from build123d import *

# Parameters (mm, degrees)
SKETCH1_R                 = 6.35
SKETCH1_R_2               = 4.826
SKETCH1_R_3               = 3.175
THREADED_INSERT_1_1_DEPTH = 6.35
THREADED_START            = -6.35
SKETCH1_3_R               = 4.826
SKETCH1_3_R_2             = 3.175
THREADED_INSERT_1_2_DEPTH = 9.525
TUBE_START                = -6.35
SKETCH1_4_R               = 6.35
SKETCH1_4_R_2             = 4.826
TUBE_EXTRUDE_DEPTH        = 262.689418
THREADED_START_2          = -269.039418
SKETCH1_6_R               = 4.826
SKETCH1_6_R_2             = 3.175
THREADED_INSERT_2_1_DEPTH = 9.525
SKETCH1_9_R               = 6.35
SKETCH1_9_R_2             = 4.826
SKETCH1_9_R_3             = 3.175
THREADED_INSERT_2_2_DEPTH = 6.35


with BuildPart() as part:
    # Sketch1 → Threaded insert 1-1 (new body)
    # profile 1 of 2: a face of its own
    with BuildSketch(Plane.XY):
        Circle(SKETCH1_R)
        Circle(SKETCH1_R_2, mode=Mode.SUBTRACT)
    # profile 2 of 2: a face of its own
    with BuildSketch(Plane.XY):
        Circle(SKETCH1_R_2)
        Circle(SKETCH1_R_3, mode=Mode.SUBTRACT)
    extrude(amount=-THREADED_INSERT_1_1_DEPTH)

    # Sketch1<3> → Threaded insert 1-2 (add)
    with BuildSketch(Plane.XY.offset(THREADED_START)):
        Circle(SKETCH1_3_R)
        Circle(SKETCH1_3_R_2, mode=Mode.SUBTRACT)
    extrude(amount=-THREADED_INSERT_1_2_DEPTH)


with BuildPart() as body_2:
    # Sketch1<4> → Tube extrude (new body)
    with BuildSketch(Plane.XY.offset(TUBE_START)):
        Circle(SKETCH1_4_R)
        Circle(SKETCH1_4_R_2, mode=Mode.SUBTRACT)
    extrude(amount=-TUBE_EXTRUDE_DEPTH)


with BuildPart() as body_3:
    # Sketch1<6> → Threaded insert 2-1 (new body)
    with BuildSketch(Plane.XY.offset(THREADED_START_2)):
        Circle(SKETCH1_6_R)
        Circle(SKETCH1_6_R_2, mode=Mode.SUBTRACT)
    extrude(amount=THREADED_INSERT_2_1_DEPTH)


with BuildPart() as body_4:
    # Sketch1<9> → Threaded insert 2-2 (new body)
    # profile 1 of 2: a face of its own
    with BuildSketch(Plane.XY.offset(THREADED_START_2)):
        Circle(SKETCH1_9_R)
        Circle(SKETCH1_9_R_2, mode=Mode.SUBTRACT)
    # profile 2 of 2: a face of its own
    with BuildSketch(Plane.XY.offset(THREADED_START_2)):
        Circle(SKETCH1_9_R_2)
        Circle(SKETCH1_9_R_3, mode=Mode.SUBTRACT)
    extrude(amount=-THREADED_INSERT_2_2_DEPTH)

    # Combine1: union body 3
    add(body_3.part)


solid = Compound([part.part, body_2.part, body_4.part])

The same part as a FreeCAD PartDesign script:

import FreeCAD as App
import Part
import Sketcher

V = App.Vector
Q = App.Units.Quantity

doc = App.newDocument("Part")
body = doc.addObject("PartDesign::Body", "Body")

# Sketch on XY plane
sketch1 = body.newObject("Sketcher::SketchObject", "Sketch")
sketch1.AttachmentSupport = (doc.getObject("XY_Plane"), [""])
sketch1.MapMode = "FlatFace"
sketch1.addGeometry([
    Part.Circle(V(0, 0, 0), V(0, 0, 1), 6.35),
    Part.Circle(V(0, 0, 0), V(0, 0, 1), 3.175),
], False)
sketch1.addConstraint([
    Sketcher.Constraint("Coincident", 0, 3, -1, 1),
    Sketcher.Constraint("Coincident", 1, 3, -1, 1),
    Sketcher.Constraint("Diameter", 0, Q("0.5 in")),
    Sketcher.Constraint("Diameter", 1, Q("0.25 in")),
])
pad1 = body.newObject("PartDesign::Pad", "Pad")
pad1.Profile = sketch1
pad1.Length = Q("0.25 in")
pad1.Reversed = True

# Sketch on XY plane
sketch2 = body.newObject("Sketcher::SketchObject", "Sketch001")
sketch2.AttachmentSupport = (doc.getObject("XY_Plane"), [""])
sketch2.MapMode = "FlatFace"
sketch2.AttachmentOffset = App.Placement(V(0, 0, -0.25 * 25.4), App.Rotation())
sketch2.addGeometry([
    Part.Circle(V(0, 0, 0), V(0, 0, 1), 4.826),
    Part.Circle(V(0, 0, 0), V(0, 0, 1), 3.175),
], False)
sketch2.addConstraint([
    Sketcher.Constraint("Coincident", 0, 3, -1, 1),
    Sketcher.Constraint("Coincident", 1, 3, -1, 1),
    Sketcher.Constraint("Diameter", 0, Q("0.38 in")),
    Sketcher.Constraint("Diameter", 1, Q("0.25 in")),
])
pad2 = body.newObject("PartDesign::Pad", "Pad001")
pad2.Profile = sketch2
pad2.Length = Q("0.375 in")
pad2.Reversed = True
body2 = doc.addObject("PartDesign::Body", "Body001")

# Sketch on XY plane
sketch3 = body2.newObject("Sketcher::SketchObject", "Sketch002")
sketch3.AttachmentSupport = (doc.getObject("XY_Plane001"), [""])
sketch3.MapMode = "FlatFace"
sketch3.AttachmentOffset = App.Placement(V(0, 0, -0.25 * 25.4), App.Rotation())
sketch3.addGeometry([
    Part.Circle(V(0, 0, 0), V(0, 0, 1), 6.35),
    Part.Circle(V(0, 0, 0), V(0, 0, 1), 4.826),
], False)
sketch3.addConstraint([
    Sketcher.Constraint("Coincident", 0, 3, -1, 1),
    Sketcher.Constraint("Coincident", 1, 3, -1, 1),
    Sketcher.Constraint("Diameter", 0, Q("0.5 in")),
    Sketcher.Constraint("Diameter", 1, Q("0.38 in")),
])
pad3 = body2.newObject("PartDesign::Pad", "Pad002")
pad3.Profile = sketch3
pad3.Length = 262.689418
pad3.Reversed = True
body3 = doc.addObject("PartDesign::Body", "Body002")

# Sketch on XY plane
sketch4 = body3.newObject("Sketcher::SketchObject", "Sketch003")
sketch4.AttachmentSupport = (doc.getObject("XY_Plane002"), [""])
sketch4.MapMode = "FlatFace"
sketch4.AttachmentOffset = App.Placement(V(0, 0, -269.039418), App.Rotation())
sketch4.addGeometry([
    Part.Circle(V(0, 0, 0), V(0, 0, 1), 4.826),
    Part.Circle(V(0, 0, 0), V(0, 0, 1), 3.175),
], False)
sketch4.addConstraint([
    Sketcher.Constraint("Coincident", 0, 3, -1, 1),
    Sketcher.Constraint("Coincident", 1, 3, -1, 1),
    Sketcher.Constraint("Diameter", 0, Q("0.38 in")),
    Sketcher.Constraint("Diameter", 1, Q("0.25 in")),
])
pad4 = body3.newObject("PartDesign::Pad", "Pad003")
pad4.Profile = sketch4
pad4.Length = Q("0.375 in")
body4 = doc.addObject("PartDesign::Body", "Body003")

# Sketch on XY plane
sketch5 = body4.newObject("Sketcher::SketchObject", "Sketch004")
sketch5.AttachmentSupport = (doc.getObject("XY_Plane003"), [""])
sketch5.MapMode = "FlatFace"
sketch5.AttachmentOffset = App.Placement(V(0, 0, -269.039418), App.Rotation())
sketch5.addGeometry([
    Part.Circle(V(0, 0, 0), V(0, 0, 1), 6.35),
    Part.Circle(V(0, 0, 0), V(0, 0, 1), 3.175),
], False)
sketch5.addConstraint([
    Sketcher.Constraint("Coincident", 0, 3, -1, 1),
    Sketcher.Constraint("Coincident", 1, 3, -1, 1),
    Sketcher.Constraint("Diameter", 0, Q("0.5 in")),
    Sketcher.Constraint("Diameter", 1, Q("0.25 in")),
])
pad5 = body4.newObject("PartDesign::Pad", "Pad004")
pad5.Profile = sketch5
pad5.Length = Q("0.25 in")
pad5.Reversed = True
doc.recompute()

boolean = body4.newObject("PartDesign::Boolean", "Boolean")
boolean.Type = "Fuse"
boolean.addObjects([body3])

doc.recompute()
